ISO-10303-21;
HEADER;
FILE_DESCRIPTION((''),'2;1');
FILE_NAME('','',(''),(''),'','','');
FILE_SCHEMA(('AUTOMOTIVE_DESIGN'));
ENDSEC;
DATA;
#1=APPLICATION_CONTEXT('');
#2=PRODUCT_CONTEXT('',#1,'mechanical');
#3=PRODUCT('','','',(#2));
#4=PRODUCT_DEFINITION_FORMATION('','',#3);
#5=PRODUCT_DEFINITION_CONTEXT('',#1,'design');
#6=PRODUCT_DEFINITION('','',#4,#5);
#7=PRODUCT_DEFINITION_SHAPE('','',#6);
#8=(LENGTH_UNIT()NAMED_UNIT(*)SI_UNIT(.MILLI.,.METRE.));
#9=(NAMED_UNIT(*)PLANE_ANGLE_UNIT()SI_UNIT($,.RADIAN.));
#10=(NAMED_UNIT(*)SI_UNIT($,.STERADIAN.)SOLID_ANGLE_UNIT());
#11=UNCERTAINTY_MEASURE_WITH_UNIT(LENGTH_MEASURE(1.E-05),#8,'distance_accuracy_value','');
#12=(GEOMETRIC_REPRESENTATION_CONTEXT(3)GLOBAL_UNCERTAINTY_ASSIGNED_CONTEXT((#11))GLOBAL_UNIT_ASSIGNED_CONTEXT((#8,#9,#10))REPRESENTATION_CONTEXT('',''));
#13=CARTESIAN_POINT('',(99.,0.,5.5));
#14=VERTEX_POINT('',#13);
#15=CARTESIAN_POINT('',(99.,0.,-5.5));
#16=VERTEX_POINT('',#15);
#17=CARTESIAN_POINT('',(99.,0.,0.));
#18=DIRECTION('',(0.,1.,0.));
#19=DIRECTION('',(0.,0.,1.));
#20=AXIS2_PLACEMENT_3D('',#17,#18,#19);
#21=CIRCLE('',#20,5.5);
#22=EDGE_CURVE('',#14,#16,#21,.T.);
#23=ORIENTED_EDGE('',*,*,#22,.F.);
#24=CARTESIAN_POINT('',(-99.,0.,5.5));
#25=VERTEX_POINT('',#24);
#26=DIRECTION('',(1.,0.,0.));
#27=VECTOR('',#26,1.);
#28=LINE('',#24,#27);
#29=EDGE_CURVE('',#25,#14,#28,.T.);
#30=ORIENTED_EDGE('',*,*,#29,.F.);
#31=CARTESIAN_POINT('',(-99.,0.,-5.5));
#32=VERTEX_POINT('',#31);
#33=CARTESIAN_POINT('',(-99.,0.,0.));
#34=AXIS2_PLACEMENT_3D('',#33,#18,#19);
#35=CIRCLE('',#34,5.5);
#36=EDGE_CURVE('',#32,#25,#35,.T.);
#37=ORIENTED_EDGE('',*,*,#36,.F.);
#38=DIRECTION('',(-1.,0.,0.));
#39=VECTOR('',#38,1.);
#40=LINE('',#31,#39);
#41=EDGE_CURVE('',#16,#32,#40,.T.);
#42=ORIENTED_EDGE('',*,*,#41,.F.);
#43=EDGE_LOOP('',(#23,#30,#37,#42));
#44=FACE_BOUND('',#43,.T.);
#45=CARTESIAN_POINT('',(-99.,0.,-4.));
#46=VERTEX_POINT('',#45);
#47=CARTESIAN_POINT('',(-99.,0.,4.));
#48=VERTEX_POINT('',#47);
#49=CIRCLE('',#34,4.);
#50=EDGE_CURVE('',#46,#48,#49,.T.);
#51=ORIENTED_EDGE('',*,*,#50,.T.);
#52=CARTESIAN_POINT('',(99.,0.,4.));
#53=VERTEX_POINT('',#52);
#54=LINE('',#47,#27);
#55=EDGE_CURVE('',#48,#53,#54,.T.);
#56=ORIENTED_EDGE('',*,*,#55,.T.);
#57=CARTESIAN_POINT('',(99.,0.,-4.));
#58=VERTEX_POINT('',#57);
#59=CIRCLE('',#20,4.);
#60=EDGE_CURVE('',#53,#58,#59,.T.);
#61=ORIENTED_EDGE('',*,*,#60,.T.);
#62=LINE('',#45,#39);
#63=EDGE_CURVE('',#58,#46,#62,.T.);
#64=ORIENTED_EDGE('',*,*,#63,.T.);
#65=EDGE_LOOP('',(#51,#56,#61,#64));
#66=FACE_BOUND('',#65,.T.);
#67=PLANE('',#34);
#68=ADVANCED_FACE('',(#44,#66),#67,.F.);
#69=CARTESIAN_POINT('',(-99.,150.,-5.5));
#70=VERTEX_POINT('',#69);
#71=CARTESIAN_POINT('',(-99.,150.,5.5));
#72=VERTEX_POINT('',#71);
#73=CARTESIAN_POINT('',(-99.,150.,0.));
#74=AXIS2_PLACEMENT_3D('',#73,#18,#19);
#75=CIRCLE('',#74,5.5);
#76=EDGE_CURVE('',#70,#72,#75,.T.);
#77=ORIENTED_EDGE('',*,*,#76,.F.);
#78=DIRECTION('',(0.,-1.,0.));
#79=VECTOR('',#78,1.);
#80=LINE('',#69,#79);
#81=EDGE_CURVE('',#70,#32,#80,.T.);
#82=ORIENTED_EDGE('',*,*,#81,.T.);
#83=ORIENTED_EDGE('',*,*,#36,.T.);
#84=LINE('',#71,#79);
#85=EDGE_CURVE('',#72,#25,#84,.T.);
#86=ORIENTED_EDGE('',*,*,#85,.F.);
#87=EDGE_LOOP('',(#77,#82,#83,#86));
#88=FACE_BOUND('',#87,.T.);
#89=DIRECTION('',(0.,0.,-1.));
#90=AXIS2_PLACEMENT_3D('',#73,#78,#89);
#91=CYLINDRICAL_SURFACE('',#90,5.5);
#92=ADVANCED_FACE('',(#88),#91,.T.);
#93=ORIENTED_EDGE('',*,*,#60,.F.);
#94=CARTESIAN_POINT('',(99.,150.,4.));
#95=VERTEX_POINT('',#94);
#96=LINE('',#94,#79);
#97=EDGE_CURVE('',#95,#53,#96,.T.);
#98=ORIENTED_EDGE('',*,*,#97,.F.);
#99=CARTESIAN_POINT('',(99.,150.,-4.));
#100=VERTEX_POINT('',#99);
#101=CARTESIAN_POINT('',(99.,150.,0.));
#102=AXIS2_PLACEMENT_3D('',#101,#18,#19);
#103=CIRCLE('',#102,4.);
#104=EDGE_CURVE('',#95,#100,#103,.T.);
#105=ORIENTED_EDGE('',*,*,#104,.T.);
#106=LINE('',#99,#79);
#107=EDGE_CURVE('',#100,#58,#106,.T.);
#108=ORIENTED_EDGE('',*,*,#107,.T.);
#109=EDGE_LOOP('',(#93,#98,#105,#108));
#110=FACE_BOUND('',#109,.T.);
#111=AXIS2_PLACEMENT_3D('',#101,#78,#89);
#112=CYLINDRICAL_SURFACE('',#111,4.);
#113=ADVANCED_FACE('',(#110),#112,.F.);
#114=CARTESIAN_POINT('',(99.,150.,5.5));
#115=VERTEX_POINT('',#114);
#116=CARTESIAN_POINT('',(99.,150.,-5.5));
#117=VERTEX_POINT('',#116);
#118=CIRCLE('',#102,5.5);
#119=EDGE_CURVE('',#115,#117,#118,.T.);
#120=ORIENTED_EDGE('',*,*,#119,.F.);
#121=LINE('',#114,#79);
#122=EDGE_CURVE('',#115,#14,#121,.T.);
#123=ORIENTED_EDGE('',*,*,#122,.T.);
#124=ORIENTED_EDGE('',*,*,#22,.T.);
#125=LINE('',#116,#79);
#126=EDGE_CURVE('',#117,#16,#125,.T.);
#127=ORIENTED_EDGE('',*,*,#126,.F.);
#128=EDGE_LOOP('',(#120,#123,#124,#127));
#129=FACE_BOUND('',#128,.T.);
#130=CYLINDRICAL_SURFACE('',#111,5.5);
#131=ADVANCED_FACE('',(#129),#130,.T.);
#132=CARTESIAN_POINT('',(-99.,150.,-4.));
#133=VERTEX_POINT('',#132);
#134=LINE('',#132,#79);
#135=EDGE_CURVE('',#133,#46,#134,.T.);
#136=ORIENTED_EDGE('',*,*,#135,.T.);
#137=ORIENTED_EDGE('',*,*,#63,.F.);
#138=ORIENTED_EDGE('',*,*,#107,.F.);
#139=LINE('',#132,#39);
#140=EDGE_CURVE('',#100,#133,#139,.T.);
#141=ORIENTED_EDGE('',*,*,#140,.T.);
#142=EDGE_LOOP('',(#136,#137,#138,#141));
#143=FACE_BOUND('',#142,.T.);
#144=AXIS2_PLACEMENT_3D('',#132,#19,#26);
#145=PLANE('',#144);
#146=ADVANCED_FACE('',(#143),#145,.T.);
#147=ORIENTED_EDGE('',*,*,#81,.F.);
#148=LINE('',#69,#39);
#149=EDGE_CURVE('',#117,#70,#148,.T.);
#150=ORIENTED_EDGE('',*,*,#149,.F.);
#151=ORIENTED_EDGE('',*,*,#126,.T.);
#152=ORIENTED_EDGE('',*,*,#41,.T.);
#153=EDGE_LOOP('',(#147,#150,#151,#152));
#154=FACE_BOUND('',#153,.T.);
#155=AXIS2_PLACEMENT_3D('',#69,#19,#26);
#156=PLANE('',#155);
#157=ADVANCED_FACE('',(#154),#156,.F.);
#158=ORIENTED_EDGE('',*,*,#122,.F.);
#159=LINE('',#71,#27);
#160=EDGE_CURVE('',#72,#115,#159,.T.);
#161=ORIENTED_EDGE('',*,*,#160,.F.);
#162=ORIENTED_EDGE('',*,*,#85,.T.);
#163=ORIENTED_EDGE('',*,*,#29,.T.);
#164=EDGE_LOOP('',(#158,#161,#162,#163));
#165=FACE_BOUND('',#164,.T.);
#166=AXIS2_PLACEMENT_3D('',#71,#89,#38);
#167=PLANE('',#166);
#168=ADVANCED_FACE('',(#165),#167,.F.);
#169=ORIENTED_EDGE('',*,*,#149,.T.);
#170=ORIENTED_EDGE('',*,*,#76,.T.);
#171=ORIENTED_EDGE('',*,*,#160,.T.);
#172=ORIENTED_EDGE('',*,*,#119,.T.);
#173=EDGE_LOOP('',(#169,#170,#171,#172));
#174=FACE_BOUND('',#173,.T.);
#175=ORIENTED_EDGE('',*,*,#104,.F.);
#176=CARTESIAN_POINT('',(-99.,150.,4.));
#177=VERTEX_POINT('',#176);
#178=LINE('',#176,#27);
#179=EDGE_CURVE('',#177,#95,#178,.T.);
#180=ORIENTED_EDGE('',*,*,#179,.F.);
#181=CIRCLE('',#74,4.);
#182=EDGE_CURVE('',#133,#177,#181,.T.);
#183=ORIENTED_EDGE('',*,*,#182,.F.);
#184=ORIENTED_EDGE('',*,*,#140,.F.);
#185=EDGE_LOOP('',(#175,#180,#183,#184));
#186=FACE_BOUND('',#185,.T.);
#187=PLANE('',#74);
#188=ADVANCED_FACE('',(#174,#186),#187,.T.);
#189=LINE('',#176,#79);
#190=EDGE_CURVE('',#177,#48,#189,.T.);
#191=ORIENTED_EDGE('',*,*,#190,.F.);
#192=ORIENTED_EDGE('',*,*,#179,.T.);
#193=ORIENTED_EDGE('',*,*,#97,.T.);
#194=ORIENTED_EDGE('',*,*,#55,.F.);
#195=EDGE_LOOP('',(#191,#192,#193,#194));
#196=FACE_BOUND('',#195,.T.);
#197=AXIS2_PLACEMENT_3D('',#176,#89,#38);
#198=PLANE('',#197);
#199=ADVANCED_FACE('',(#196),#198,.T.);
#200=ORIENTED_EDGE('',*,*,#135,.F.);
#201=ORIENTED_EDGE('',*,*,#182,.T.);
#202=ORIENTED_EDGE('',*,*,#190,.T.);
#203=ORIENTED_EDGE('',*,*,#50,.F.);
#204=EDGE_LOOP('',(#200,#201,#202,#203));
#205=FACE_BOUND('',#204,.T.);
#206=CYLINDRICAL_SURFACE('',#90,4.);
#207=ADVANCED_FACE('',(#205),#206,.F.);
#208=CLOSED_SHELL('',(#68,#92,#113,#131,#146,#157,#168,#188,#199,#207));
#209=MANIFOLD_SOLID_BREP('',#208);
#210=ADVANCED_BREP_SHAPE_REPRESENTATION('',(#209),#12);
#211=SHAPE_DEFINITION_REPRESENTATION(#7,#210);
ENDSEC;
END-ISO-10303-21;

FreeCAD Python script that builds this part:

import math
import FreeCAD as App
import Part
import Sketcher
from FreeCAD import Vector

doc = App.newDocument("Part")
params = doc.addObject("Spreadsheet::Sheet", "Params")
for row, (alias, value) in enumerate([
    ("sketch1_radius", "4 mm"),
    ("sketch1_radius2", "5.5 mm"),
    ("sketch1_width", "198 mm"),
    ("pad1_length", "150 mm"),
], start=1):
    params.set(f"A{row}", alias)
    params.set(f"B{row}", "=" + value)
    params.setAlias(f"B{row}", alias)

body = doc.addObject("PartDesign::Body", "Body")

# Sketch on XZ plane
sketch1 = body.newObject("Sketcher::SketchObject", "Sketch")
sketch1.AttachmentSupport = (doc.getObject("XZ_Plane"), [""])
sketch1.MapMode = "FlatFace"
sketch1.addGeometry([
    Part.LineSegment(Vector(-99, 5.5, 0), Vector(99, 5.5, 0)),  # 0
    Part.ArcOfCircle(Part.Circle(Vector(99, 0, 0), Vector(0, 0, 1), 5.5), math.radians(-90), math.radians(90)),  # 1
    Part.LineSegment(Vector(99, -5.5, 0), Vector(-99, -5.5, 0)),  # 2
    Part.ArcOfCircle(Part.Circle(Vector(-99, 0, 0), Vector(0, 0, 1), 5.5), math.radians(90), math.radians(270)),  # 3
    Part.ArcOfCircle(Part.Circle(Vector(-99, 0, 0), Vector(0, 0, 1), 4), math.radians(90), math.radians(270)),  # 4
    Part.LineSegment(Vector(-99, -4, 0), Vector(99, -4, 0)),  # 5
    Part.ArcOfCircle(Part.Circle(Vector(99, 0, 0), Vector(0, 0, 1), 4), math.radians(-90), math.radians(90)),  # 6
    Part.LineSegment(Vector(99, 4, 0), Vector(-99, 4, 0)),  # 7
], False)
sketch1.addConstraint([
    Sketcher.Constraint("Tangent", 0, 2, 1, 2),
    Sketcher.Constraint("Tangent", 1, 1, 2, 1),
    Sketcher.Constraint("Tangent", 2, 2, 3, 2),
    Sketcher.Constraint("Tangent", 3, 1, 0, 1),
    Sketcher.Constraint("Tangent", 4, 2, 5, 1),
    Sketcher.Constraint("Tangent", 5, 2, 6, 1),
    Sketcher.Constraint("Tangent", 6, 2, 7, 1),
    Sketcher.Constraint("Tangent", 7, 2, 4, 1),
    Sketcher.Constraint("Horizontal", 0),
    Sketcher.Constraint("Horizontal", 2),
    Sketcher.Constraint("Horizontal", 5),
    Sketcher.Constraint("Horizontal", 7),
    Sketcher.Constraint("Coincident", 4, 3, 3, 3),
    Sketcher.Constraint("Symmetric", 1, 3, 3, 3, -1, 1),
    Sketcher.Constraint("Vertical", 6, 3, 0, 2),
    Sketcher.Constraint("Radius", 4, 4.0),
    Sketcher.Constraint("Radius", 1, 5.5),
    Sketcher.Constraint("DistanceX", 0, 1, 0, 2, 198.0),
])
sketch1.setExpression("Constraints[15]", "Params.sketch1_radius")
sketch1.setExpression("Constraints[16]", "Params.sketch1_radius2")
sketch1.setExpression("Constraints[17]", "Params.sketch1_width")
pad1 = body.newObject("PartDesign::Pad", "Pad")
pad1.Profile = sketch1
pad1.setExpression("Length", "Params.pad1_length")
pad1.Reversed = True

doc.recompute()
